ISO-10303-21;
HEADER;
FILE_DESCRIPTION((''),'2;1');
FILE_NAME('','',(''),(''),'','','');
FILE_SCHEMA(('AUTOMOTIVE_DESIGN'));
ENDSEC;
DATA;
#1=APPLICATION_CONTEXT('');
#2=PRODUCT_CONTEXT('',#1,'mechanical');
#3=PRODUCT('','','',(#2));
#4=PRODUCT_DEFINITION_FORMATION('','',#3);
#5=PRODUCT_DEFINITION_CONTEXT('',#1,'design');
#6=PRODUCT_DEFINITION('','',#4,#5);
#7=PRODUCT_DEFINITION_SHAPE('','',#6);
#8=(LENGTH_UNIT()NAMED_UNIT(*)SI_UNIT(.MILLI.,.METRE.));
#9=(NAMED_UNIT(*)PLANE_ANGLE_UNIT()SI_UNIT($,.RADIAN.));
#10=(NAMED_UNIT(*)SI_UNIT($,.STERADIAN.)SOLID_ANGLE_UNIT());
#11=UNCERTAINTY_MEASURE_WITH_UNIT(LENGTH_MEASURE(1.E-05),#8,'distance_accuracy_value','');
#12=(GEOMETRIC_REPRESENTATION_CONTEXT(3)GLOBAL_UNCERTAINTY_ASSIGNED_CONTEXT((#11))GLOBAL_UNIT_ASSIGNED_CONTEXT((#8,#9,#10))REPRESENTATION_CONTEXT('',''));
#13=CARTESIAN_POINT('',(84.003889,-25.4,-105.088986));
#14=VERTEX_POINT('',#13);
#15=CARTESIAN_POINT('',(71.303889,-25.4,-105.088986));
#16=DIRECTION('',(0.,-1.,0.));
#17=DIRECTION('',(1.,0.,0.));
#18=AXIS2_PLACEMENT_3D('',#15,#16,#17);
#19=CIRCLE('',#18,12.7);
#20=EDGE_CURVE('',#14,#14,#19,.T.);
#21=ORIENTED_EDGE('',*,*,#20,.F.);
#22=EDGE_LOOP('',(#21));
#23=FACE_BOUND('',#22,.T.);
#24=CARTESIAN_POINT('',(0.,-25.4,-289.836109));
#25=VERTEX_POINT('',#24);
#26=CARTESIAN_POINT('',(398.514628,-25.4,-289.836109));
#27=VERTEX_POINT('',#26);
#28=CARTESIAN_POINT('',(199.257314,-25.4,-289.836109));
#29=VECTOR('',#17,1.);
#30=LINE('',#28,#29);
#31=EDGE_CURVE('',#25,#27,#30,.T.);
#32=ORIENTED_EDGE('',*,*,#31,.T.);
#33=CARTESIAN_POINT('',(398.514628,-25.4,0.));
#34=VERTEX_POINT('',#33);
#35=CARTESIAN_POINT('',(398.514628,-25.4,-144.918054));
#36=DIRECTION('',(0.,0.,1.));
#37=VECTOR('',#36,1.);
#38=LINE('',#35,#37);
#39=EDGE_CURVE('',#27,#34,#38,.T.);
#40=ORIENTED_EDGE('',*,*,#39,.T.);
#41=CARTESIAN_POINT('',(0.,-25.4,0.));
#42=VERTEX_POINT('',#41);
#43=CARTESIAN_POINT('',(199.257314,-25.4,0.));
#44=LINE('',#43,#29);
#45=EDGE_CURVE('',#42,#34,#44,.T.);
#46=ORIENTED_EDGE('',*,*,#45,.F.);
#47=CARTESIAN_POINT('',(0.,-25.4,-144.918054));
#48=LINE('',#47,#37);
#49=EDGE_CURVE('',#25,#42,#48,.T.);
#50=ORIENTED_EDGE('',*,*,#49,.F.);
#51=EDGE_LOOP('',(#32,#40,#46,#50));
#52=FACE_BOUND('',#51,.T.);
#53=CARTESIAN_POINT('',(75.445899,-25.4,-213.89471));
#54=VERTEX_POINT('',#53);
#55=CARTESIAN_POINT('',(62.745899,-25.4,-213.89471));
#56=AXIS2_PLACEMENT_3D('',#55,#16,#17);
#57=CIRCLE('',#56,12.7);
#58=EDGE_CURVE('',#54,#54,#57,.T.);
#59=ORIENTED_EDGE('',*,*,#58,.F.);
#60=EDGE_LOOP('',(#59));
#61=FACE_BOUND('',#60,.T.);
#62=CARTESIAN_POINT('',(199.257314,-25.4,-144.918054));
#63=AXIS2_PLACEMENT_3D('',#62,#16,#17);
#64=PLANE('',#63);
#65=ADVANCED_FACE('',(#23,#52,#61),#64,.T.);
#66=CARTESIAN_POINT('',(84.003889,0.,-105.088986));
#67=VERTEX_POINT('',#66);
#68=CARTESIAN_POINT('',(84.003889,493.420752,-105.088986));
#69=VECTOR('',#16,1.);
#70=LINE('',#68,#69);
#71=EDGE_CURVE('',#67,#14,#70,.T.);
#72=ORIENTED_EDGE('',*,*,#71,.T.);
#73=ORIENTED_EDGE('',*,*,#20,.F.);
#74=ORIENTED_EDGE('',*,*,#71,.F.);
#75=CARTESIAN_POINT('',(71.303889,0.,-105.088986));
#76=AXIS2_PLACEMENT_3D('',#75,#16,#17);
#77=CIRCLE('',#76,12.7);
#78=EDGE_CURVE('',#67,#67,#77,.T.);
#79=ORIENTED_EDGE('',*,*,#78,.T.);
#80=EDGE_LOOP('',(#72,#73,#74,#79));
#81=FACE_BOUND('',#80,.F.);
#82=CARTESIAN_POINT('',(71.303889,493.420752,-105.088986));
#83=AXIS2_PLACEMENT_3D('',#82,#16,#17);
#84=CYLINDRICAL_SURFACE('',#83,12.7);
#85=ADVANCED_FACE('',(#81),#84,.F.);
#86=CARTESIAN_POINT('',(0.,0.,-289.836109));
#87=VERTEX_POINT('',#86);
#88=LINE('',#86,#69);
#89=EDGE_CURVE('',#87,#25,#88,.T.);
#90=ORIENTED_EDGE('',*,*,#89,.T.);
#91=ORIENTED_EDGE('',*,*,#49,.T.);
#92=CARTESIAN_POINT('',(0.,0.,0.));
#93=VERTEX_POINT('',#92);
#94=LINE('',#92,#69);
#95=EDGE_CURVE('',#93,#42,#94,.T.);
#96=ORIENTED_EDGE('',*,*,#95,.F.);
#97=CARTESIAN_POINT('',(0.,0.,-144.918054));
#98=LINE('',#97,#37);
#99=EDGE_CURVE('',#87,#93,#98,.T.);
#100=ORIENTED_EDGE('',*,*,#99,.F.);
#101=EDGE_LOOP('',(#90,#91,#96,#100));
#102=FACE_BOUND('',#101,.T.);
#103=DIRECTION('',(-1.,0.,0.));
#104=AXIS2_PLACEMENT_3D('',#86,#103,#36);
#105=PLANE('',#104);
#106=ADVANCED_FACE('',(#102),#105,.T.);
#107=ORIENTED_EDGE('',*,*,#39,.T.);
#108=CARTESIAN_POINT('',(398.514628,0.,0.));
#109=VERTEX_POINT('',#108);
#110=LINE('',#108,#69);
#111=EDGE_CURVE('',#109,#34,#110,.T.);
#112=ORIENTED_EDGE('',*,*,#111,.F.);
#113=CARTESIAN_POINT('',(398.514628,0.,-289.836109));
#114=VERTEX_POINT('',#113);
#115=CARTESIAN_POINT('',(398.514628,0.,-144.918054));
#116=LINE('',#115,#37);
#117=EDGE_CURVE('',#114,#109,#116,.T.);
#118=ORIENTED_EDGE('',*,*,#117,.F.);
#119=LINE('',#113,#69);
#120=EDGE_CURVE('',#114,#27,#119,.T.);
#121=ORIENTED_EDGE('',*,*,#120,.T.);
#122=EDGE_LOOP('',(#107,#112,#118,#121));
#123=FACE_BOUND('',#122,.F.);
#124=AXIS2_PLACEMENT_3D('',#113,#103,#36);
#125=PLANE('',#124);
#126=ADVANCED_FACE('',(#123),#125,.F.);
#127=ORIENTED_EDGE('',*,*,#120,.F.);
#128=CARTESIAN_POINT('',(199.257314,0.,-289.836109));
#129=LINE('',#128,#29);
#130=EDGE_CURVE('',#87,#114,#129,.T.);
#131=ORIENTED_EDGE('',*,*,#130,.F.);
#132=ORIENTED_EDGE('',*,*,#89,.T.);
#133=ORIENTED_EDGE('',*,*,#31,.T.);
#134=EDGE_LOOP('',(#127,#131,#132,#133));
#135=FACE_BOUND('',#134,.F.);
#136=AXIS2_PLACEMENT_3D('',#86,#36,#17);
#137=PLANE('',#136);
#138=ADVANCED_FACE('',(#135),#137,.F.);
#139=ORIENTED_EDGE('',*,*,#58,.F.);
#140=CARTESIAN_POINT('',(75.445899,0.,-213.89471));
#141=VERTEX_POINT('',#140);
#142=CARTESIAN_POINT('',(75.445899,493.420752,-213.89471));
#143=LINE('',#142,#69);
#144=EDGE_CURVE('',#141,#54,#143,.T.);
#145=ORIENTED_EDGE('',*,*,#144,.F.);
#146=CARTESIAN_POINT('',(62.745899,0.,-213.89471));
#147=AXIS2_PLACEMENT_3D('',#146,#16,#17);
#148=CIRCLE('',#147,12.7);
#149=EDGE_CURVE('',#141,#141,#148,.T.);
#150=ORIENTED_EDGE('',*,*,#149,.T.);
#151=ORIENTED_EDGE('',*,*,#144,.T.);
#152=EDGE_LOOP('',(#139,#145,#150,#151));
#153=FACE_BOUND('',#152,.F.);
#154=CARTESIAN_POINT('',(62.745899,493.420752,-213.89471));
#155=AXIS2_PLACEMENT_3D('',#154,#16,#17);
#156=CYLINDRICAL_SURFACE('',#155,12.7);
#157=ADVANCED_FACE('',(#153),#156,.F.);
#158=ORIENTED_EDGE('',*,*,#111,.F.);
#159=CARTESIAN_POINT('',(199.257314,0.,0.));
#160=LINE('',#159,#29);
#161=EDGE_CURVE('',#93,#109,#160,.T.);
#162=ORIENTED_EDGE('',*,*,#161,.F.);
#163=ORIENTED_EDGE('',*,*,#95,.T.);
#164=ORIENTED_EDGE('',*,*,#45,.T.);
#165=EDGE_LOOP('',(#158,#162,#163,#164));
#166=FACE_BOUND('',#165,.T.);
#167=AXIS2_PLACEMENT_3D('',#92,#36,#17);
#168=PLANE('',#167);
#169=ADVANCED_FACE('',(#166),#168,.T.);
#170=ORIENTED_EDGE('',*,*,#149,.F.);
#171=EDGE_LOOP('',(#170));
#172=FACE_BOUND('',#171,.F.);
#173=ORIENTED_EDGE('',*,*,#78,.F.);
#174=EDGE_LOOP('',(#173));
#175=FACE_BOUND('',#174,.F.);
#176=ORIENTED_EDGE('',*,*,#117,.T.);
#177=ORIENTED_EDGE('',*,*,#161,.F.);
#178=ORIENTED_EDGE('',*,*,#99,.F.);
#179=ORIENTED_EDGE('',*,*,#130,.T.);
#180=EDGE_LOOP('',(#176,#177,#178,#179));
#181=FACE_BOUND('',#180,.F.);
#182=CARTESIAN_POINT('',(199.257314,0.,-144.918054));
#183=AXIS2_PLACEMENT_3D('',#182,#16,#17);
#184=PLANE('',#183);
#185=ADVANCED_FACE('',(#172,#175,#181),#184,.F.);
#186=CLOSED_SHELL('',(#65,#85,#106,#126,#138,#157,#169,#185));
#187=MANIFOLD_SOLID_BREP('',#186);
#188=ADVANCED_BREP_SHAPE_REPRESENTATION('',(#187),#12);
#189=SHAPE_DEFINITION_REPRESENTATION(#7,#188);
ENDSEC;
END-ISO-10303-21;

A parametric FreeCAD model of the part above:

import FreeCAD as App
import Part
import Sketcher
from FreeCAD import Vector
Q = App.Units.Quantity


def add_polygon(sketch, points):
    """Adds a closed chain of lines whose ends are joined by coincident constraints."""
    first, n = sketch.GeometryCount, len(points)
    for a, b in zip(points, points[1:] + points[:1]):
        sketch.addGeometry(Part.LineSegment(App.Vector(*a, 0), App.Vector(*b, 0)), False)
    for i in range(n):
        sketch.addConstraint(Sketcher.Constraint("Coincident", first + i, 2, first + (i + 1) % n, 1))

doc = App.newDocument("Part")
body = doc.addObject("PartDesign::Body", "Body")

# Sketch on XZ plane
sketch1 = doc.addObject("Sketcher::SketchObject", "Sketch")
body.addObject(sketch1)
sketch1.AttachmentSupport = (doc.XZ_Plane, [""])
sketch1.MapMode = "FlatFace"
add_polygon(sketch1, [(0, 0), (0, -289.836109), (398.514628, -289.836109), (398.514628, 0)])  # lines 0-3
sketch1.addConstraint([
    Sketcher.Constraint("Vertical", 0),
    Sketcher.Constraint("Horizontal", 1),
    Sketcher.Constraint("Vertical", 2),
    Sketcher.Constraint("Horizontal", 3),
    Sketcher.Constraint("Coincident", 3, 2, -1, 1),
    Sketcher.Constraint("DistanceX", 1, 1, 1, 2, 398.514628),
    Sketcher.Constraint("DistanceY", 0, 2, 0, 1, 289.836109),
])
pad1 = doc.addObject("PartDesign::Pad", "Pad")
body.addObject(pad1)
pad1.Profile = sketch1
pad1.Length = Q("1 in")

# Sketch on XZ plane
sketch2 = doc.addObject("Sketcher::SketchObject", "Sketch001")
body.addObject(sketch2)
sketch2.AttachmentSupport = (doc.XZ_Plane, [""])
sketch2.MapMode = "FlatFace"
sketch2.addGeometry([
    Part.Circle(Vector(71.303889, -105.088986, 0), Vector(0, 0, 1), 12.7),
    Part.Circle(Vector(62.745899, -213.89471, 0), Vector(0, 0, 1), 12.7),
], False)
sketch2.addConstraint([
    Sketcher.Constraint("Equal", 0, 1),
    Sketcher.Constraint("Diameter", 0, Q("1 in")),
    Sketcher.Constraint("DistanceX", -1, 1, 1, 3, 62.745899),
    Sketcher.Constraint("DistanceX", -1, 1, 0, 3, 71.303889),
    Sketcher.Constraint("DistanceY", 1, 3, -1, 1, 213.89471),
    Sketcher.Constraint("DistanceY", 0, 3, -1, 1, 105.088986),
])
doc.recompute()
hole = doc.addObject("PartDesign::Hole", "Hole")
body.addObject(hole)
hole.Profile = sketch2
hole.ThreadType = "None"
hole.Diameter = Q("1 in")
hole.DepthType = "ThroughAll"
hole.Reversed = True

doc.recompute()
